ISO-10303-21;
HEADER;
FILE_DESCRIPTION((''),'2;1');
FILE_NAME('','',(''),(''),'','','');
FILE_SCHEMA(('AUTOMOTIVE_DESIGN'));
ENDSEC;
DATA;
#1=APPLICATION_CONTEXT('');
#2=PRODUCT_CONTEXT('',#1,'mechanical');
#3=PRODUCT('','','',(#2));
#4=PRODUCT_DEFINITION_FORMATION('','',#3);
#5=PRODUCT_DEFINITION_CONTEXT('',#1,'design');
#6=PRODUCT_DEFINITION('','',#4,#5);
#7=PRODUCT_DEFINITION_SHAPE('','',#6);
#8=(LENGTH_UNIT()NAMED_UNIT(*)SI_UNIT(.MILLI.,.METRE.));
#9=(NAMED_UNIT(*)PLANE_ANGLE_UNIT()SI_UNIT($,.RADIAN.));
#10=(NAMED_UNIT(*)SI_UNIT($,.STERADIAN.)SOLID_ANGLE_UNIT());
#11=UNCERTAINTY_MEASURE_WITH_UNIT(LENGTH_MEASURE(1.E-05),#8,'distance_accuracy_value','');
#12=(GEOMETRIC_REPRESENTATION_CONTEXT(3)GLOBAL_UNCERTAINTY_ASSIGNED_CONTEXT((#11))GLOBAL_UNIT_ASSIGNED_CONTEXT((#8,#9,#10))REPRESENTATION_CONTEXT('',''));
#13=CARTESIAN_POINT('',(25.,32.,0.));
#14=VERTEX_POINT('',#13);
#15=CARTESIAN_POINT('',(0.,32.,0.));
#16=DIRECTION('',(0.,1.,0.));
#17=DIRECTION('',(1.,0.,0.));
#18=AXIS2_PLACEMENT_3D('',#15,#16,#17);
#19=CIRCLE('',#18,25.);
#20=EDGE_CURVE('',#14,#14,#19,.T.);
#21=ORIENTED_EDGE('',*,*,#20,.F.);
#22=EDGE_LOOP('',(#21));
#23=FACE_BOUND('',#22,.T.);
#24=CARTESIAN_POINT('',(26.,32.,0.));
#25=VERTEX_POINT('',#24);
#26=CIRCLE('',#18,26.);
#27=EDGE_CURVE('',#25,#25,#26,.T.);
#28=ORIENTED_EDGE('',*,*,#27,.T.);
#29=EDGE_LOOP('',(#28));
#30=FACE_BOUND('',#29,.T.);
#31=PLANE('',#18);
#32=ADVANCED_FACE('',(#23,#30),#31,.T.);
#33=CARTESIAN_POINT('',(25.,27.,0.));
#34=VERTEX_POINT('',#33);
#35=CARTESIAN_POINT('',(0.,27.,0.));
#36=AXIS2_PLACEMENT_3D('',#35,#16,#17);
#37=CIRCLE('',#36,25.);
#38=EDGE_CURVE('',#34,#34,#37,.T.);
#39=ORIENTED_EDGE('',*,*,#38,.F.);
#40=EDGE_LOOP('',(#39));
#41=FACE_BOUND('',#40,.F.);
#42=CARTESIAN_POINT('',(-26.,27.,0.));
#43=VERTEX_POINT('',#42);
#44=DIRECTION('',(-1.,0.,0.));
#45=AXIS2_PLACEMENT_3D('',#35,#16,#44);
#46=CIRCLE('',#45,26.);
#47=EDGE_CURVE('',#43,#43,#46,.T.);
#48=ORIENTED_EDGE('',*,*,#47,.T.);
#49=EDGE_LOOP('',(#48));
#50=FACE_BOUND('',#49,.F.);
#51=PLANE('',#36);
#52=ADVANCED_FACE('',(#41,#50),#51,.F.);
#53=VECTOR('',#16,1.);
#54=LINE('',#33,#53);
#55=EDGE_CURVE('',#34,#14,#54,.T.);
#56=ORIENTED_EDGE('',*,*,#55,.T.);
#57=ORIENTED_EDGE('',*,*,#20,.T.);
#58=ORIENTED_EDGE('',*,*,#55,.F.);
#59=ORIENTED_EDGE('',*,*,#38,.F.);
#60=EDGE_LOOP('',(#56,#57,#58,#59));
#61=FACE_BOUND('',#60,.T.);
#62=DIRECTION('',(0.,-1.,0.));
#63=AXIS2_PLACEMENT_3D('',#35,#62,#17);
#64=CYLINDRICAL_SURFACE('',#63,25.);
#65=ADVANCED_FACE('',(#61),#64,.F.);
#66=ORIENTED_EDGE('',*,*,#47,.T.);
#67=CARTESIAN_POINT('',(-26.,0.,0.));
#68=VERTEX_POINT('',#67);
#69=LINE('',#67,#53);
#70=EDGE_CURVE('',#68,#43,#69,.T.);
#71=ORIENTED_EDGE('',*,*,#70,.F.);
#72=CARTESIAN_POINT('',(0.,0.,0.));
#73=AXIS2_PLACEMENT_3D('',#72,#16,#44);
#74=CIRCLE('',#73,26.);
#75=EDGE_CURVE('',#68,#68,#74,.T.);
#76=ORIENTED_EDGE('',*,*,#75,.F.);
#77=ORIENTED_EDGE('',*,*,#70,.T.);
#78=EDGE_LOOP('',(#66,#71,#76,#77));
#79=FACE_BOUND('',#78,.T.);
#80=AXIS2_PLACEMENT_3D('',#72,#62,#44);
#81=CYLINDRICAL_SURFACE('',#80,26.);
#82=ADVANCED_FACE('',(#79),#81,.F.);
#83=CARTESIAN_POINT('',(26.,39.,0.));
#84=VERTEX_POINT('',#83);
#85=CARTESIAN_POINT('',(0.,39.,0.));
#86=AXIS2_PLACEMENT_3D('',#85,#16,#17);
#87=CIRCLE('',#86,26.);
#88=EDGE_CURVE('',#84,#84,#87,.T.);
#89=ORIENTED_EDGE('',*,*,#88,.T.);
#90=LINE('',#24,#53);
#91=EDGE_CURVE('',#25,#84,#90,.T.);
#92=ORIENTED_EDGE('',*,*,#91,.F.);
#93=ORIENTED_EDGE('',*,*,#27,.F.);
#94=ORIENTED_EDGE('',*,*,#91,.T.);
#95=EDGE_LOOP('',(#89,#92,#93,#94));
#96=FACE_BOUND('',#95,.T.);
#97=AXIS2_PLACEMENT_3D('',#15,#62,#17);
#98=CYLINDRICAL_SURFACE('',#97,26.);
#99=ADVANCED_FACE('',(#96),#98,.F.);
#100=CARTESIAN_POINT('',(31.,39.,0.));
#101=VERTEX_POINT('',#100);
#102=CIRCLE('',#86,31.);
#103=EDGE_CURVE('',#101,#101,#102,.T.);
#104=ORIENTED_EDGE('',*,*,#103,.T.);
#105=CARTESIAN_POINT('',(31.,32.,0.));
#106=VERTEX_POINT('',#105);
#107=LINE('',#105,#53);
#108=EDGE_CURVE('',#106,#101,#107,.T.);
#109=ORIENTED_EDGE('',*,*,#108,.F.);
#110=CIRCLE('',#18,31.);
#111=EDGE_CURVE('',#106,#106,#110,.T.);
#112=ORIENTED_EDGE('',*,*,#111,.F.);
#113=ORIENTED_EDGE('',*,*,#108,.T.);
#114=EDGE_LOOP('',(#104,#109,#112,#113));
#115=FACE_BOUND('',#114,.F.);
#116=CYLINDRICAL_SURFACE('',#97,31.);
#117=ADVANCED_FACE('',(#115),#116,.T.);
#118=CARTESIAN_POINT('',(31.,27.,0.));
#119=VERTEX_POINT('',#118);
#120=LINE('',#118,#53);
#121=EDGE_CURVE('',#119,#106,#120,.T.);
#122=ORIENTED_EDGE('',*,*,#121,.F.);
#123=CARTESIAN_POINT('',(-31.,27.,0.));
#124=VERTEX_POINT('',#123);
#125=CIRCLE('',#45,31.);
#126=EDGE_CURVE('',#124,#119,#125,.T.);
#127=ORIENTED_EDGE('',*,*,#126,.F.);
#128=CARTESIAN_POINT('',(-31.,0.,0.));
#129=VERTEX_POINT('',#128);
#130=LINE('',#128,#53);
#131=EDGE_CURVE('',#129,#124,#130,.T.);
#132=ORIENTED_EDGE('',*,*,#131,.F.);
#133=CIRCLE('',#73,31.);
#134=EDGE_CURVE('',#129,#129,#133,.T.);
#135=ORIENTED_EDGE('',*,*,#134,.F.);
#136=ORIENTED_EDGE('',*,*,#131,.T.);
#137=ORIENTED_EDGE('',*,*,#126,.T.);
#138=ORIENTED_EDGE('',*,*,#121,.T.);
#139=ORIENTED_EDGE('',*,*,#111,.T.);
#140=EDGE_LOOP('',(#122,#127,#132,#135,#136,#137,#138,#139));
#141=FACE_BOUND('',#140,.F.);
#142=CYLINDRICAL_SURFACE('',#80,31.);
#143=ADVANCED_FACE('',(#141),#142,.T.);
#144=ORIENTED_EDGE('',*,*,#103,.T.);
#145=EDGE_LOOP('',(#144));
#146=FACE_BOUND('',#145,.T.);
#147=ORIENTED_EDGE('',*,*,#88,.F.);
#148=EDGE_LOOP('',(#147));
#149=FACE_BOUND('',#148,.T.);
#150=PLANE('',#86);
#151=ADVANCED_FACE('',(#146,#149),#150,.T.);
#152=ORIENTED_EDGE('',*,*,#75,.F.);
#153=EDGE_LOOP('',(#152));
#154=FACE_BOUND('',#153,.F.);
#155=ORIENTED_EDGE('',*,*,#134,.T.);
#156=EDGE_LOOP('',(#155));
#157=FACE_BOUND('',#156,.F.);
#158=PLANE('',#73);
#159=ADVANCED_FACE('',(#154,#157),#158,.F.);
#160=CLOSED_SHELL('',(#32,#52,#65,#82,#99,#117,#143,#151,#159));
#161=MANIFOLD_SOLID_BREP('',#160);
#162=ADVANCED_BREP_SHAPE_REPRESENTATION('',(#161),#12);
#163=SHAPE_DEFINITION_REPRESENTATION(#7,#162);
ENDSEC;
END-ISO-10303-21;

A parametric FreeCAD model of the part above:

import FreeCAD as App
import Part
import Sketcher
from FreeCAD import Vector
Q = App.Units.Quantity

doc = App.newDocument("Part")
body = doc.addObject("PartDesign::Body", "Body")

sketch1 = doc.addObject("Sketcher::SketchObject", "Sketch")
body.addObject(sketch1)
sketch1.AttachmentSupport = (doc.XZ_Plane, [""])
sketch1.MapMode = "FlatFace"
sketch1.addGeometry(Part.Circle(Vector(0, 0, 0), Vector(0, 0, 1), 31), False)
sketch1.addGeometry(Part.Circle(Vector(0, 0, 0), Vector(0, 0, 1), 26), False)
sketch1.addConstraint(Sketcher.Constraint("Coincident", 0, 3, -1, 1))
sketch1.addConstraint(Sketcher.Constraint("Coincident", 1, 3, -1, 1))
sketch1.addConstraint(Sketcher.Constraint("Diameter", 0, Q("62 mm")))
sketch1.addConstraint(Sketcher.Constraint("Diameter", 1, Q("52 mm")))
pad1 = doc.addObject("PartDesign::Pad", "Pad")
body.addObject(pad1)
pad1.Profile = sketch1
pad1.Length = 27
pad1.Reversed = True

sketch2 = doc.addObject("Sketcher::SketchObject", "Sketch001")
body.addObject(sketch2)
sketch2.AttachmentSupport = (doc.XZ_Plane, [""])
sketch2.MapMode = "FlatFace"
sketch2.AttachmentOffset = App.Placement(Vector(0, 0, -27), App.Rotation())
sketch2.addGeometry(Part.Circle(Vector(0, 0, 0), Vector(0, 0, 1), 31), False)
sketch2.addGeometry(Part.Circle(Vector(0, 0, 0), Vector(0, 0, 1), 25), False)
sketch2.addConstraint(Sketcher.Constraint("Coincident", 0, 3, -1, 1))
sketch2.addConstraint(Sketcher.Constraint("Coincident", 1, 3, -1, 1))
sketch2.addConstraint(Sketcher.Constraint("Diameter", 1, Q("50 mm")))
sketch2.addConstraint(Sketcher.Constraint("Diameter", 0, Q("62 mm")))
pad2 = doc.addObject("PartDesign::Pad", "Pad001")
body.addObject(pad2)
pad2.Profile = sketch2
pad2.Length = 5
pad2.Reversed = True

sketch3 = doc.addObject("Sketcher::SketchObject", "Sketch002")
body.addObject(sketch3)
sketch3.AttachmentSupport = (doc.XZ_Plane, [""])
sketch3.MapMode = "FlatFace"
sketch3.AttachmentOffset = App.Placement(Vector(0, 0, -32), App.Rotation())
sketch3.addGeometry(Part.Circle(Vector(0, 0, 0), Vector(0, 0, 1), 31), False)
sketch3.addGeometry(Part.Circle(Vector(0, 0, 0), Vector(0, 0, 1), 26), False)
sketch3.addConstraint(Sketcher.Constraint("Coincident", 0, 3, -1, 1))
sketch3.addConstraint(Sketcher.Constraint("Coincident", 1, 3, -1, 1))
sketch3.addConstraint(Sketcher.Constraint("Diameter", 0, Q("62 mm")))
sketch3.addConstraint(Sketcher.Constraint("Diameter", 1, Q("52 mm")))
pad3 = doc.addObject("PartDesign::Pad", "Pad002")
body.addObject(pad3)
pad3.Profile = sketch3
pad3.Length = 7
pad3.Reversed = True

doc.recompute()
